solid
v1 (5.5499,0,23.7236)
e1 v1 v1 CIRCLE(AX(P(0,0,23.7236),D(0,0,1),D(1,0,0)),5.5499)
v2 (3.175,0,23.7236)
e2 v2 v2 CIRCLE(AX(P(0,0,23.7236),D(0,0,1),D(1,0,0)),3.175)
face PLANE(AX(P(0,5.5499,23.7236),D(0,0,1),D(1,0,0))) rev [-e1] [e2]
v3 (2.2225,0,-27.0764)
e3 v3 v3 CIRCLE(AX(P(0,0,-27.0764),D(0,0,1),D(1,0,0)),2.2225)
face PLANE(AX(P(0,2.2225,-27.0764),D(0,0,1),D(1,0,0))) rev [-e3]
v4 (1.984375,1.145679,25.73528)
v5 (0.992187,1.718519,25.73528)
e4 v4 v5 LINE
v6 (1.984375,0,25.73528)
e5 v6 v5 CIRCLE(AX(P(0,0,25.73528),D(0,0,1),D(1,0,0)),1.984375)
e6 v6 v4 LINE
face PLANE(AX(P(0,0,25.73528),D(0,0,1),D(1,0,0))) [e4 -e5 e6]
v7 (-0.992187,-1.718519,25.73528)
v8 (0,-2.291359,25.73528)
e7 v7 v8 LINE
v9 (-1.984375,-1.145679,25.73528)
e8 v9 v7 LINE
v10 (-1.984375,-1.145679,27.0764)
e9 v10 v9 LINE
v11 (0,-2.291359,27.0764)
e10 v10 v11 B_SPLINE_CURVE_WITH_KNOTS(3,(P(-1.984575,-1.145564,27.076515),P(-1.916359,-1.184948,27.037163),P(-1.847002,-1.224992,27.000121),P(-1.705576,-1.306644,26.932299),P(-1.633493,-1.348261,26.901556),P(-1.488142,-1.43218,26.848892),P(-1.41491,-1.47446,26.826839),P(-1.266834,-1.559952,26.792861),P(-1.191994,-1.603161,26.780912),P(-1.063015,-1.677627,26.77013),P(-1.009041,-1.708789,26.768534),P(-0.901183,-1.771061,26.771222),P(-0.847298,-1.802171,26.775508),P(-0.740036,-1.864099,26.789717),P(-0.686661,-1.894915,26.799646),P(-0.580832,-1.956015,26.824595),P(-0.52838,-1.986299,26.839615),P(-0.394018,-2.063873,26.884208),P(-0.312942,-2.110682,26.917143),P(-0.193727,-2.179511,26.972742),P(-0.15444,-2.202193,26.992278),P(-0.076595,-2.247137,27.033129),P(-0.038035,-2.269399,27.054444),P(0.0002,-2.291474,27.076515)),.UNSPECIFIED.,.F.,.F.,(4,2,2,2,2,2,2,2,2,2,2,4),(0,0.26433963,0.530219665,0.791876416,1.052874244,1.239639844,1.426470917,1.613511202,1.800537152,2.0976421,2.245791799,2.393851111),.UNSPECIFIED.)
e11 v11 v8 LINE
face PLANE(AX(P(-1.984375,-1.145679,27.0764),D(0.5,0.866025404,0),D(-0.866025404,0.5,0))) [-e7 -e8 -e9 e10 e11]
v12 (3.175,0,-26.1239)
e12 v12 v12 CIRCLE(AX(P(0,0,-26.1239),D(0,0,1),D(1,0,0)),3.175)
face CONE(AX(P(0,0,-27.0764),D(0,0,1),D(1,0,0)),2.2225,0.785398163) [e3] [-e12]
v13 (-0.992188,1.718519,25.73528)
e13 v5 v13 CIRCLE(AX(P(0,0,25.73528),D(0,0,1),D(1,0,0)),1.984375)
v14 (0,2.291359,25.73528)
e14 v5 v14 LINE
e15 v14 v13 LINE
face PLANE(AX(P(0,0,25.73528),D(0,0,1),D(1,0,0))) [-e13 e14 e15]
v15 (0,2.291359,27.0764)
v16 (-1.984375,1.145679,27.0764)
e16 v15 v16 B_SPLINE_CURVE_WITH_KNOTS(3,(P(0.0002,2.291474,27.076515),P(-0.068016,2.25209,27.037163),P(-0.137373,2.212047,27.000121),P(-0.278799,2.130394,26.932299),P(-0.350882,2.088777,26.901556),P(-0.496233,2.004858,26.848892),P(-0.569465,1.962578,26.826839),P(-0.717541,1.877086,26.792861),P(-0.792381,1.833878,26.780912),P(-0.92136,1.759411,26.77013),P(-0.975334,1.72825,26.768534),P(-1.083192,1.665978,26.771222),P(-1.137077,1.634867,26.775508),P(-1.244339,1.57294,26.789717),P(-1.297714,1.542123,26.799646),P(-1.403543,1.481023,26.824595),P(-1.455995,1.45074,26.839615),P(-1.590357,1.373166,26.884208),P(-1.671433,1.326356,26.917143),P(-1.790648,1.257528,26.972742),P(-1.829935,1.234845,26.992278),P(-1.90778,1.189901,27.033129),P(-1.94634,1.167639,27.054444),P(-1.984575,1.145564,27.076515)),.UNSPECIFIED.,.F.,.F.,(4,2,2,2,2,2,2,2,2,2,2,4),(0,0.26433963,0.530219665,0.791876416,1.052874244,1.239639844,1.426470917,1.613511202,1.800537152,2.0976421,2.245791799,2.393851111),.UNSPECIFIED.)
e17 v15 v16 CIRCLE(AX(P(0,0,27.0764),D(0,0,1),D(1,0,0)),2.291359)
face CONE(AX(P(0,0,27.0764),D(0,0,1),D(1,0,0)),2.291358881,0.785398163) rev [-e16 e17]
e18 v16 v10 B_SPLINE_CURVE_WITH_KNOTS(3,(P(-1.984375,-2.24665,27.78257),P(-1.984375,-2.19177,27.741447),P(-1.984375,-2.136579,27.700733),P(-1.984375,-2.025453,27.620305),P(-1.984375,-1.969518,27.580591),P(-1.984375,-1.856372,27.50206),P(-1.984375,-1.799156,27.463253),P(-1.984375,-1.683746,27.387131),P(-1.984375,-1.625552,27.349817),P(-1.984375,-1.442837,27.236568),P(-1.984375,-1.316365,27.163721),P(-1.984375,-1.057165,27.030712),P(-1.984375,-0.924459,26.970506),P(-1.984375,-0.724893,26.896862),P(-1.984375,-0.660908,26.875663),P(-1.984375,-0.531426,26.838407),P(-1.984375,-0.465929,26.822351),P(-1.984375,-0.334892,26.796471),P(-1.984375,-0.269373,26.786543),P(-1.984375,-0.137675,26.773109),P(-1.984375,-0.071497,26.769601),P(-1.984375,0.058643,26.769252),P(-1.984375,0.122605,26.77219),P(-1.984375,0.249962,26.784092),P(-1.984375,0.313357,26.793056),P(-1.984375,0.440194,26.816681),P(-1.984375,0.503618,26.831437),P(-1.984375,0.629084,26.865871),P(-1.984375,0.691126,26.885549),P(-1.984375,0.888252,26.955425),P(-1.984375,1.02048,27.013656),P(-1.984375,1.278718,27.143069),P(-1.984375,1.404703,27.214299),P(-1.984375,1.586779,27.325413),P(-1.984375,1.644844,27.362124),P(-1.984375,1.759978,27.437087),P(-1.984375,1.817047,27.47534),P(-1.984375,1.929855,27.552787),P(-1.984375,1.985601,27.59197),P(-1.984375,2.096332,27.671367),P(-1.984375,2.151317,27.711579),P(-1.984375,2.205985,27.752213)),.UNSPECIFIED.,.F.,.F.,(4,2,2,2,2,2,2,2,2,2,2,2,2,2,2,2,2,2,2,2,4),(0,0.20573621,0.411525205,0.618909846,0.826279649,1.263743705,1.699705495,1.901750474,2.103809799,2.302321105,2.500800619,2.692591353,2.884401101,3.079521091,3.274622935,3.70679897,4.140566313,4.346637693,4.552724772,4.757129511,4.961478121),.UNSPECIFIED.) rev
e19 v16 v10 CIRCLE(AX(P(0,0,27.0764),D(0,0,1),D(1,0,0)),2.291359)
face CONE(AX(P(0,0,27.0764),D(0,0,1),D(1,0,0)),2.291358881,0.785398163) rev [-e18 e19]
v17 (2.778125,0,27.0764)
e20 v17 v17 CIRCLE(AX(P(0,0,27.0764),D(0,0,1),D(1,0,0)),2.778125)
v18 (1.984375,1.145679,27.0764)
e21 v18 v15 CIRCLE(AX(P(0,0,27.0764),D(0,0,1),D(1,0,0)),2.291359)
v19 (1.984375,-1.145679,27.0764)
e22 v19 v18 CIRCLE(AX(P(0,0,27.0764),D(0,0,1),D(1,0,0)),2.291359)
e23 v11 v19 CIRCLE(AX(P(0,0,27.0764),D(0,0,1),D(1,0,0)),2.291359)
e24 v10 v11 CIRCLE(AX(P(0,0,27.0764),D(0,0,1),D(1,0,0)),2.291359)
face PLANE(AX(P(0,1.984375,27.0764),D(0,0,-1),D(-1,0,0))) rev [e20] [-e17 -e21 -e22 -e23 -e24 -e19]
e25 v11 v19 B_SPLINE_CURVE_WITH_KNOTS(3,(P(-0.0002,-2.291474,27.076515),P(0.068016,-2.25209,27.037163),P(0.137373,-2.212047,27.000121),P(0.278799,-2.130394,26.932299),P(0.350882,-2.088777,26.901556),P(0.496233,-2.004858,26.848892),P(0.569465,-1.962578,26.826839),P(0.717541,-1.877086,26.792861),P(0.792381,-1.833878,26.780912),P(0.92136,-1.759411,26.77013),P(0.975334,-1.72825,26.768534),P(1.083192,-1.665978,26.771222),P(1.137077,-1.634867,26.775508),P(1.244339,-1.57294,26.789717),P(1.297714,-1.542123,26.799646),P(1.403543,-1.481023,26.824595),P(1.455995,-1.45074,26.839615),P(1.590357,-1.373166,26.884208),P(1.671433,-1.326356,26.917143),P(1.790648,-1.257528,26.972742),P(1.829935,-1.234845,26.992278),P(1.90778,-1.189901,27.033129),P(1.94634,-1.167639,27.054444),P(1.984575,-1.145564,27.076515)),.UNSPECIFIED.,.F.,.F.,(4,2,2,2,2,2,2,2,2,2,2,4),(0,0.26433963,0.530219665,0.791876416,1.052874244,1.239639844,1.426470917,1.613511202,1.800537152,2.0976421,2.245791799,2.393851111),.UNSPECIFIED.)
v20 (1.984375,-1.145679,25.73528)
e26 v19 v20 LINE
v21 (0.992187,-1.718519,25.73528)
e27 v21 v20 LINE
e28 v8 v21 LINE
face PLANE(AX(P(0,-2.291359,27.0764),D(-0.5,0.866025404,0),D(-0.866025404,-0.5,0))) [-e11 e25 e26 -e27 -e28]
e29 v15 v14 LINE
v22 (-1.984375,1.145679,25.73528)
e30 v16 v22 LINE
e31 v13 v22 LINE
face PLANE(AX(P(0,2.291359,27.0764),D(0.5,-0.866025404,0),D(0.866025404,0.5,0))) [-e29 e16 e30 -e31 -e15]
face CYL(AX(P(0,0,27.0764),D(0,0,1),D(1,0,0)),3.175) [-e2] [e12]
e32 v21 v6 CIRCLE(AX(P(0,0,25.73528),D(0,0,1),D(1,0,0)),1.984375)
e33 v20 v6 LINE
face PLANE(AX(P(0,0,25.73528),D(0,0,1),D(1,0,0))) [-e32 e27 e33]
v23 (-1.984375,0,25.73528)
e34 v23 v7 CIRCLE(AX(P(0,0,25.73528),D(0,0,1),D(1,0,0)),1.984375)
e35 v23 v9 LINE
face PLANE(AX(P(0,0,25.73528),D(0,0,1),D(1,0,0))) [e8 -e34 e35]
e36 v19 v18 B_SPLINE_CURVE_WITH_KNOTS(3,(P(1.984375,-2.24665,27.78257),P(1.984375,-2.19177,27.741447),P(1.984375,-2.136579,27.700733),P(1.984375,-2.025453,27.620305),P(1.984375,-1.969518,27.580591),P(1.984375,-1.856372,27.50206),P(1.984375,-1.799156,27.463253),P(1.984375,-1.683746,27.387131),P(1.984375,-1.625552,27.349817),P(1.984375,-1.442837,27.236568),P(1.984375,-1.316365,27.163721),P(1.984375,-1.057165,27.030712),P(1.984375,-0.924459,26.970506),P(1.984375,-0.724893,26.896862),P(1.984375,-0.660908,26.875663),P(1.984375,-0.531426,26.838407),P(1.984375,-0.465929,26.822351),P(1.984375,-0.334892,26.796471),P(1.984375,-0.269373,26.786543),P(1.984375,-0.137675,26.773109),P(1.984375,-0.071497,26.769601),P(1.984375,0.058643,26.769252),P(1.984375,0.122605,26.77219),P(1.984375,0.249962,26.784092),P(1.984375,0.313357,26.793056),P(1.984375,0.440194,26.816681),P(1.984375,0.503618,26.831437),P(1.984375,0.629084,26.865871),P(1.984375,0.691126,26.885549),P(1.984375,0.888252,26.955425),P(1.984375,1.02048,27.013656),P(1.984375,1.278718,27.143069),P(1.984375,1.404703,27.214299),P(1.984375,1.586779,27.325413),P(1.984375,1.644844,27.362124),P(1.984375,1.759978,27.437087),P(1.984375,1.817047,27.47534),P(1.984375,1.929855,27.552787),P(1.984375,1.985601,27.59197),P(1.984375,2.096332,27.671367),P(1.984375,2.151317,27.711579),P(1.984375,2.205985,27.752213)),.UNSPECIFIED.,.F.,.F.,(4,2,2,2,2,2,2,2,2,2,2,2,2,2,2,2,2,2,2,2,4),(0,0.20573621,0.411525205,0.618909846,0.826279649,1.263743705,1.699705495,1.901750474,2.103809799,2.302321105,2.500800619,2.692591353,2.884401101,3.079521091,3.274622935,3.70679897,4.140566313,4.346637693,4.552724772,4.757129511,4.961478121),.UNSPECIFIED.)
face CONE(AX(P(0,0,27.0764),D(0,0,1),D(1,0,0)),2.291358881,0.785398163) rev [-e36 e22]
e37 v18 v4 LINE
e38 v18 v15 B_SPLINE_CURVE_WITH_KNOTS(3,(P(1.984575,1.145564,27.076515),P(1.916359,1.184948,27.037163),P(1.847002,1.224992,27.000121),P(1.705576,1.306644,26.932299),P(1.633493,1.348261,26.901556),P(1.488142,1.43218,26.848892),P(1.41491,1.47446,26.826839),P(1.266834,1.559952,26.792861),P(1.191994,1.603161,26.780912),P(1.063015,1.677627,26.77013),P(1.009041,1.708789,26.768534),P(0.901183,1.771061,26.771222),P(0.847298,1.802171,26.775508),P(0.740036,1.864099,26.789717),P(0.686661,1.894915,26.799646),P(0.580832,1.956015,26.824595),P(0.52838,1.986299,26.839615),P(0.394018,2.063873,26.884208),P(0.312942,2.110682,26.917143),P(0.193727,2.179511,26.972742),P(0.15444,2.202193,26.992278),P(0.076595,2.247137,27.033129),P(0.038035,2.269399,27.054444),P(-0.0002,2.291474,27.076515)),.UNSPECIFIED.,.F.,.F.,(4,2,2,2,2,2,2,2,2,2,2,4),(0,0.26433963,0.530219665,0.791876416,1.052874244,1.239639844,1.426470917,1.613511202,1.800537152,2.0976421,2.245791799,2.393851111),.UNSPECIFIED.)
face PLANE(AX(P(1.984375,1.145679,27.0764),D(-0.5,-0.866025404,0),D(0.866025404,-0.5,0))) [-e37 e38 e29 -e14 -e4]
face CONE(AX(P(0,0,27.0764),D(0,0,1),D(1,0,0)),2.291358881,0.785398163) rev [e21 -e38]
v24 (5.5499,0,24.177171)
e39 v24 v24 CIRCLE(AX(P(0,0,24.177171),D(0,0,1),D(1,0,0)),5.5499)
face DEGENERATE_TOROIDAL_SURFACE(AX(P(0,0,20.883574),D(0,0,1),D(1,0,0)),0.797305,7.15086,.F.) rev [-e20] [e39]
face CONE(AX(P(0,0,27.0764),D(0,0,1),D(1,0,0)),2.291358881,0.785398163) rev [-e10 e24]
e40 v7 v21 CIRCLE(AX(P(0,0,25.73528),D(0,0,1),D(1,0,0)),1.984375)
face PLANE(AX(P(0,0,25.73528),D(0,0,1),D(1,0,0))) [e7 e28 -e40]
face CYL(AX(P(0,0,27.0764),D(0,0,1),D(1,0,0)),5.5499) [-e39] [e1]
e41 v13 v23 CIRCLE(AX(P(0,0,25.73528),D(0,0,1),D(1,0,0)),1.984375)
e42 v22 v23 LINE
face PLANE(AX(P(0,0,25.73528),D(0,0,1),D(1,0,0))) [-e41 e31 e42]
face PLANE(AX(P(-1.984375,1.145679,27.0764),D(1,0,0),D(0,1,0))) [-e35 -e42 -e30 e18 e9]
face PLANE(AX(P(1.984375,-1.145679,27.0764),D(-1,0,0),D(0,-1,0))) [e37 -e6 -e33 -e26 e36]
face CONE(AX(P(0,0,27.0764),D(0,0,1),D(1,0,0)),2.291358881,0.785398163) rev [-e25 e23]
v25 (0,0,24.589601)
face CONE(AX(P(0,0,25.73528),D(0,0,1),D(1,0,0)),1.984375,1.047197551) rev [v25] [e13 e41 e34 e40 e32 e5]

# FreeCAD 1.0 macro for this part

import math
import FreeCAD as App
import Part
import Sketcher

V = App.Vector
Q = App.Units.Quantity


def add_polygon(sketch, points):
    """Adds a closed chain of lines whose ends are joined by coincident constraints."""
    first, n = sketch.GeometryCount, len(points)
    for a, b in zip(points, points[1:] + points[:1]):
        sketch.addGeometry(Part.LineSegment(App.Vector(*a, 0), App.Vector(*b, 0)), False)
    for i in range(n):
        sketch.addConstraint(Sketcher.Constraint("Coincident", first + i, 2, first + (i + 1) % n, 1))

doc = App.newDocument("Part")
body = doc.addObject("PartDesign::Body", "Body")

sketch1 = body.newObject("Sketcher::SketchObject", "Sketch")
sketch1.AttachmentSupport = (doc.getObject("YZ_Plane"), [""])
sketch1.MapMode = "FlatFace"
sketch1.addGeometry([
    Part.LineSegment(V(2.78, 27.08, 0), V(1.98, 27.08, 0)),
    Part.LineSegment(V(1.98, 27.08, 0), V(1.98, 25.74, 0)),
    Part.LineSegment(V(1.98, 25.74, 0), V(0, 24.59, 0)),
    Part.LineSegment(V(0, 24.59, 0), V(0, -27.08, 0)),
    Part.LineSegment(V(0, -27.08, 0), V(2.22, -27.08, 0)),
    Part.LineSegment(V(2.22, -27.08, 0), V(3.17, -26.12, 0)),
    Part.LineSegment(V(3.17, -26.12, 0), V(3.17, 23.72, 0)),
    Part.LineSegment(V(3.17, 23.72, 0), V(5.55, 23.72, 0)),
    Part.LineSegment(V(5.55, 23.72, 0), V(5.55, 24.18, 0)),
    Part.ArcOfCircle(Part.Circle(V(-0.8, 20.88, 0), V(0, 0, 1), 7.15), math.radians(27), math.radians(60)),
], False)
sketch1.addConstraint([
    Sketcher.Constraint("Coincident", 0, 2, 1, 1),
    Sketcher.Constraint("Coincident", 1, 2, 2, 1),
    Sketcher.Constraint("Coincident", 2, 2, 3, 1),
    Sketcher.Constraint("Coincident", 3, 2, 4, 1),
    Sketcher.Constraint("Coincident", 4, 2, 5, 1),
    Sketcher.Constraint("Coincident", 5, 2, 6, 1),
    Sketcher.Constraint("Coincident", 6, 2, 7, 1),
    Sketcher.Constraint("Coincident", 7, 2, 8, 1),
    Sketcher.Constraint("Coincident", 8, 2, 9, 1),
    Sketcher.Constraint("Coincident", 9, 2, 0, 1),
    Sketcher.Constraint("Horizontal", 0),
    Sketcher.Constraint("Vertical", 1),
    Sketcher.Constraint("Vertical", 3),
    Sketcher.Constraint("Horizontal", 4),
    Sketcher.Constraint("Vertical", 6),
    Sketcher.Constraint("Horizontal", 7),
    Sketcher.Constraint("Vertical", 8),
    Sketcher.Constraint("PointOnObject", 2, 2, -2),
    Sketcher.Constraint("Angle", 2, Q("-150 deg")),
    Sketcher.Constraint("Angle", 5, Q("45 deg")),
    Sketcher.Constraint("DistanceX", 0, 2, 0, 1, Q("0.03125 in")),
    Sketcher.Constraint("DistanceX", 4, 1, 4, 2, Q("0.0875 in")),
    Sketcher.Constraint("DistanceX", 7, 1, 7, 2, Q("0.0935 in")),
    Sketcher.Constraint("DistanceY", 1, 2, 1, 1, Q("0.0528 in")),
    Sketcher.Constraint("DistanceY", 6, 1, 6, 2, Q("1.9625 in")),
    Sketcher.Constraint("DistanceX", -1, 1, 0, 2, Q("0.078125 in")),
    Sketcher.Constraint("DistanceY", -1, 1, 0, 2, Q("1.066 in")),
    Sketcher.Constraint("DistanceY", 3, 2, -1, 1, Q("1.066 in")),
    Sketcher.Constraint("DistanceX", -1, 1, 5, 2, Q("0.125 in")),
    Sketcher.Constraint("Radius", 9, 7.15086),
    Sketcher.Constraint("DistanceY", 8, 1, 8, 2, 0.453571),
])
revolution = body.newObject("PartDesign::Revolution", "Revolution")
revolution.Profile = sketch1
revolution.ReferenceAxis = (sketch1, ["V_Axis"])
revolution.Angle = 360

sketch2 = body.newObject("Sketcher::SketchObject", "Sketch001")
sketch2.AttachmentSupport = (doc.getObject("XY_Plane"), [""])
sketch2.MapMode = "FlatFace"
sketch2.AttachmentOffset = App.Placement(V(0, 0, 1.0132 * 25.4), App.Rotation())
add_polygon(sketch2, [(0, 2.3), (-2, 1.1), (-2, -1.1), (0, -2.3), (2, -1.1), (2, 1.1)])
sketch2.addConstraint([
    Sketcher.Constraint("Vertical", 1),
    Sketcher.Constraint("Vertical", 4),
    Sketcher.Constraint("Symmetric", 0, 2, 3, 2, -1, 1),
    Sketcher.Constraint("Symmetric", 2, 2, 5, 2, -1, 1),
    Sketcher.Constraint("PointOnObject", 2, 2, -2),
    Sketcher.Constraint("Parallel", 2, 5),
    Sketcher.Constraint("Horizontal", 1, 2, 3, 2),
    Sketcher.Constraint("Angle", 0, Q("-150 deg")),
    Sketcher.Constraint("DistanceX", 0, 2, -1, 1, Q("0.078125 in")),
    Sketcher.Constraint("DistanceY", 1, 2, 1, 1, 2.291359),
])
pocket1 = body.newObject("PartDesign::Pocket", "Pocket")
pocket1.Profile = sketch2
pocket1.Type = "ThroughAll"
pocket1.Reversed = True

sketch3 = body.newObject("Sketcher::SketchObject", "Sketch002")
sketch3.AttachmentSupport = (doc.getObject("YZ_Plane"), [""])
sketch3.MapMode = "FlatFace"
add_polygon(sketch3, [(0, 27.1), (-2.3, 27.1), (0, 24.8)])
sketch3.addConstraint([
    Sketcher.Constraint("Horizontal", 0),
    Sketcher.Constraint("Vertical", 2),
    Sketcher.Constraint("PointOnObject", 1, 2, -2),
    Sketcher.Constraint("Equal", 0, 2),
    Sketcher.Constraint("DistanceY", -1, 1, 0, 2, Q("1.066 in")),
    Sketcher.Constraint("DistanceX", 0, 2, 0, 1, 2.291359),
])
groove = body.newObject("PartDesign::Groove", "Groove")
groove.Profile = sketch3
groove.ReferenceAxis = (sketch3, ["V_Axis"])
groove.Angle = 360

doc.recompute()
